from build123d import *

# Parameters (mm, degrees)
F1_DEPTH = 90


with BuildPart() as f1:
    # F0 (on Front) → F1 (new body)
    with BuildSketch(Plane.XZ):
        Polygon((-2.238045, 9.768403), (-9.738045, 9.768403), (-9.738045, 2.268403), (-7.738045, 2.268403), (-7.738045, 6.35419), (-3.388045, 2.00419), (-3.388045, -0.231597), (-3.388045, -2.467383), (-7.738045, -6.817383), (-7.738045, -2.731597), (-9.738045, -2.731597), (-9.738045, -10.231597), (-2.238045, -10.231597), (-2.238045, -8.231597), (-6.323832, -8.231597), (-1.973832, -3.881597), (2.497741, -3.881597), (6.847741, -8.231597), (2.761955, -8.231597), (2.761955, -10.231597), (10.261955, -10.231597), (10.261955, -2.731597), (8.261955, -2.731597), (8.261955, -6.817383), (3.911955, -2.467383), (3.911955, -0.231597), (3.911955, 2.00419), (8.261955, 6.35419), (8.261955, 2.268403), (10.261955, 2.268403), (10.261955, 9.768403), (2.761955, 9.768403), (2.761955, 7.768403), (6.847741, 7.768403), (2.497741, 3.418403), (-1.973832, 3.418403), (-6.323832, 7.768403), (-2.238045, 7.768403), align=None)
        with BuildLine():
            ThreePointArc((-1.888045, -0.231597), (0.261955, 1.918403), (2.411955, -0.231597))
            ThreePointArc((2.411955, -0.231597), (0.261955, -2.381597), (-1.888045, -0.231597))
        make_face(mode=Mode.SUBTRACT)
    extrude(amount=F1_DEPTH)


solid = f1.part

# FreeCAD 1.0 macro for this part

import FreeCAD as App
import Part
import Sketcher
Q = App.Units.Quantity


def add_polygon(sketch, points):
    """Adds a closed chain of lines whose ends are joined by coincident constraints."""
    first, n = sketch.GeometryCount, len(points)
    for a, b in zip(points, points[1:] + points[:1]):
        sketch.addGeometry(Part.LineSegment(App.Vector(*a, 0), App.Vector(*b, 0)), False)
    for i in range(n):
        sketch.addConstraint(Sketcher.Constraint("Coincident", first + i, 2, first + (i + 1) % n, 1))

doc = App.newDocument("Part")
body = doc.addObject("PartDesign::Body", "Body")

sketch1 = body.newObject("Sketcher::SketchObject", "Sketch")
sketch1.AttachmentSupport = (doc.getObject("XZ_Plane"), [""])
sketch1.MapMode = "FlatFace"
add_polygon(sketch1, [(-2.238045, 9.768403), (-9.738045, 9.768403), (-9.738045, 2.268403), (-7.738045, 2.268403), (-7.738045, 6.35419), (-3.388045, 2.00419), (-3.388045, -2.467383), (-7.738045, -6.817383), (-7.738045, -2.731597), (-9.738045, -2.731597), (-9.738045, -10.231597), (-2.238045, -10.231597), (-2.238045, -8.231597), (-6.323832, -8.231597), (-1.973832, -3.881597), (2.497741, -3.881597), (6.847741, -8.231597), (2.761955, -8.231597), (2.761955, -10.231597), (10.261955, -10.231597), (10.261955, -2.731597), (8.261955, -2.731597), (8.261955, -6.817383), (3.911955, -2.467383), (3.911955, 2.00419), (8.261955, 6.35419), (8.261955, 2.268403), (10.261955, 2.268403), (10.261955, 9.768403), (2.761955, 9.768403), (2.761955, 7.768403), (6.847741, 7.768403), (2.497741, 3.418403), (-1.973832, 3.418403), (-6.323832, 7.768403), (-2.238045, 7.768403)])
sketch1.addGeometry(Part.Circle(App.Vector(0.261955, -0.231597, 0), App.Vector(0, 0, 1), 2.15), False)
sketch1.addConstraint([
    Sketcher.Constraint("Horizontal", 0),
    Sketcher.Constraint("Vertical", 1),
    Sketcher.Constraint("Horizontal", 2),
    Sketcher.Constraint("Vertical", 3),
    Sketcher.Constraint("Vertical", 5),
    Sketcher.Constraint("Vertical", 7),
    Sketcher.Constraint("Horizontal", 8),
    Sketcher.Constraint("Vertical", 9),
    Sketcher.Constraint("Horizontal", 10),
    Sketcher.Constraint("Vertical", 11),
    Sketcher.Constraint("Horizontal", 12),
    Sketcher.Constraint("Horizontal", 14),
    Sketcher.Constraint("Horizontal", 16),
    Sketcher.Constraint("Vertical", 17),
    Sketcher.Constraint("Horizontal", 18),
    Sketcher.Constraint("Vertical", 19),
    Sketcher.Constraint("Horizontal", 20),
    Sketcher.Constraint("Vertical", 21),
    Sketcher.Constraint("Vertical", 23),
    Sketcher.Constraint("Vertical", 25),
    Sketcher.Constraint("Horizontal", 26),
    Sketcher.Constraint("Vertical", 27),
    Sketcher.Constraint("Horizontal", 28),
    Sketcher.Constraint("Vertical", 29),
    Sketcher.Constraint("Horizontal", 30),
    Sketcher.Constraint("Horizontal", 32),
    Sketcher.Constraint("Horizontal", 34),
    Sketcher.Constraint("Vertical", 35),
    Sketcher.Constraint("Perpendicular", 4, 6),
    Sketcher.Constraint("Parallel", 6, 13),
    Sketcher.Constraint("Perpendicular", 13, 15),
    Sketcher.Constraint("Parallel", 15, 22),
    Sketcher.Constraint("Perpendicular", 22, 24),
    Sketcher.Constraint("Parallel", 24, 31),
    Sketcher.Constraint("Perpendicular", 31, 33),
    Sketcher.Constraint("Horizontal", 12, 2, 15, 2),
    Sketcher.Constraint("Horizontal", 10, 2, 17, 2),
    Sketcher.Constraint("Horizontal", 8, 2, 19, 2),
    Sketcher.Constraint("Horizontal", 6, 2, 21, 2),
    Sketcher.Constraint("Horizontal", 5, 2, 22, 2),
    Sketcher.Constraint("Horizontal", 4, 2, 23, 2),
    Sketcher.Constraint("Horizontal", 3, 2, 24, 2),
    Sketcher.Constraint("Horizontal", 2, 2, 25, 2),
    Sketcher.Constraint("Horizontal", 0, 2, 27, 2),
    Sketcher.Constraint("Horizontal", 30, 2, 33, 2),
    Sketcher.Constraint("Vertical", 3, 2, 6, 2),
    Sketcher.Constraint("Vertical", 1, 2, 8, 2),
    Sketcher.Constraint("Vertical", 21, 2, 24, 2),
    Sketcher.Constraint("Vertical", 19, 2, 26, 2),
    Sketcher.Constraint("Vertical", 17, 2, 28, 2),
    Sketcher.Constraint("Vertical", 15, 2, 30, 2),
    Sketcher.Constraint("Vertical", 14, 2, 31, 2),
    Sketcher.Constraint("Vertical", 13, 2, 32, 2),
    Sketcher.Constraint("Vertical", 11, 2, 34, 2),
    Sketcher.Constraint("Equal", 12, 16),
    Sketcher.Constraint("Equal", 10, 18),
    Sketcher.Constraint("Equal", 8, 20),
    Sketcher.Constraint("Equal", 28, 1),
    Sketcher.Constraint("Equal", 34, 3),
    Sketcher.Constraint("Equal", 32, 5),
    Sketcher.Constraint("Equal", 3, 7),
    Sketcher.Constraint("Equal", 1, 9),
    Sketcher.Constraint("Equal", 26, 11),
    Sketcher.Constraint("Equal", 17, 29),
    Sketcher.Constraint("Equal", 6, 13),
    Sketcher.Constraint("Diameter", 36, Q("4.3 mm")),
    Sketcher.Constraint("DistanceX", 2, 1, 2, 2, Q("2 mm")),
    Sketcher.Constraint("DistanceX", 0, 2, 0, 1, Q("7.5 mm")),
    Sketcher.Constraint("DistanceX", 0, 2, 36, 3, Q("10 mm")),
    Sketcher.Constraint("DistanceY", 36, 3, 0, 2, Q("10 mm")),
    Sketcher.Constraint("DistanceY", 7, 2, 2, 2, Q("5 mm")),
    Sketcher.Constraint("DistanceX", 4, 2, 23, 2, Q("7.3 mm")),
    Sketcher.Constraint("DistanceX", 12, 2, 12, 1, Q("4.085787 mm")),
    Sketcher.Constraint("DistanceY", -1, 1, 3, 2, Q("6.35419 mm")),
    Sketcher.Constraint("DistanceX", -1, 1, 14, 2, Q("2.497741 mm")),
])
pad1 = body.newObject("PartDesign::Pad", "Pad")
pad1.Profile = sketch1
pad1.Length = 90

doc.recompute()
